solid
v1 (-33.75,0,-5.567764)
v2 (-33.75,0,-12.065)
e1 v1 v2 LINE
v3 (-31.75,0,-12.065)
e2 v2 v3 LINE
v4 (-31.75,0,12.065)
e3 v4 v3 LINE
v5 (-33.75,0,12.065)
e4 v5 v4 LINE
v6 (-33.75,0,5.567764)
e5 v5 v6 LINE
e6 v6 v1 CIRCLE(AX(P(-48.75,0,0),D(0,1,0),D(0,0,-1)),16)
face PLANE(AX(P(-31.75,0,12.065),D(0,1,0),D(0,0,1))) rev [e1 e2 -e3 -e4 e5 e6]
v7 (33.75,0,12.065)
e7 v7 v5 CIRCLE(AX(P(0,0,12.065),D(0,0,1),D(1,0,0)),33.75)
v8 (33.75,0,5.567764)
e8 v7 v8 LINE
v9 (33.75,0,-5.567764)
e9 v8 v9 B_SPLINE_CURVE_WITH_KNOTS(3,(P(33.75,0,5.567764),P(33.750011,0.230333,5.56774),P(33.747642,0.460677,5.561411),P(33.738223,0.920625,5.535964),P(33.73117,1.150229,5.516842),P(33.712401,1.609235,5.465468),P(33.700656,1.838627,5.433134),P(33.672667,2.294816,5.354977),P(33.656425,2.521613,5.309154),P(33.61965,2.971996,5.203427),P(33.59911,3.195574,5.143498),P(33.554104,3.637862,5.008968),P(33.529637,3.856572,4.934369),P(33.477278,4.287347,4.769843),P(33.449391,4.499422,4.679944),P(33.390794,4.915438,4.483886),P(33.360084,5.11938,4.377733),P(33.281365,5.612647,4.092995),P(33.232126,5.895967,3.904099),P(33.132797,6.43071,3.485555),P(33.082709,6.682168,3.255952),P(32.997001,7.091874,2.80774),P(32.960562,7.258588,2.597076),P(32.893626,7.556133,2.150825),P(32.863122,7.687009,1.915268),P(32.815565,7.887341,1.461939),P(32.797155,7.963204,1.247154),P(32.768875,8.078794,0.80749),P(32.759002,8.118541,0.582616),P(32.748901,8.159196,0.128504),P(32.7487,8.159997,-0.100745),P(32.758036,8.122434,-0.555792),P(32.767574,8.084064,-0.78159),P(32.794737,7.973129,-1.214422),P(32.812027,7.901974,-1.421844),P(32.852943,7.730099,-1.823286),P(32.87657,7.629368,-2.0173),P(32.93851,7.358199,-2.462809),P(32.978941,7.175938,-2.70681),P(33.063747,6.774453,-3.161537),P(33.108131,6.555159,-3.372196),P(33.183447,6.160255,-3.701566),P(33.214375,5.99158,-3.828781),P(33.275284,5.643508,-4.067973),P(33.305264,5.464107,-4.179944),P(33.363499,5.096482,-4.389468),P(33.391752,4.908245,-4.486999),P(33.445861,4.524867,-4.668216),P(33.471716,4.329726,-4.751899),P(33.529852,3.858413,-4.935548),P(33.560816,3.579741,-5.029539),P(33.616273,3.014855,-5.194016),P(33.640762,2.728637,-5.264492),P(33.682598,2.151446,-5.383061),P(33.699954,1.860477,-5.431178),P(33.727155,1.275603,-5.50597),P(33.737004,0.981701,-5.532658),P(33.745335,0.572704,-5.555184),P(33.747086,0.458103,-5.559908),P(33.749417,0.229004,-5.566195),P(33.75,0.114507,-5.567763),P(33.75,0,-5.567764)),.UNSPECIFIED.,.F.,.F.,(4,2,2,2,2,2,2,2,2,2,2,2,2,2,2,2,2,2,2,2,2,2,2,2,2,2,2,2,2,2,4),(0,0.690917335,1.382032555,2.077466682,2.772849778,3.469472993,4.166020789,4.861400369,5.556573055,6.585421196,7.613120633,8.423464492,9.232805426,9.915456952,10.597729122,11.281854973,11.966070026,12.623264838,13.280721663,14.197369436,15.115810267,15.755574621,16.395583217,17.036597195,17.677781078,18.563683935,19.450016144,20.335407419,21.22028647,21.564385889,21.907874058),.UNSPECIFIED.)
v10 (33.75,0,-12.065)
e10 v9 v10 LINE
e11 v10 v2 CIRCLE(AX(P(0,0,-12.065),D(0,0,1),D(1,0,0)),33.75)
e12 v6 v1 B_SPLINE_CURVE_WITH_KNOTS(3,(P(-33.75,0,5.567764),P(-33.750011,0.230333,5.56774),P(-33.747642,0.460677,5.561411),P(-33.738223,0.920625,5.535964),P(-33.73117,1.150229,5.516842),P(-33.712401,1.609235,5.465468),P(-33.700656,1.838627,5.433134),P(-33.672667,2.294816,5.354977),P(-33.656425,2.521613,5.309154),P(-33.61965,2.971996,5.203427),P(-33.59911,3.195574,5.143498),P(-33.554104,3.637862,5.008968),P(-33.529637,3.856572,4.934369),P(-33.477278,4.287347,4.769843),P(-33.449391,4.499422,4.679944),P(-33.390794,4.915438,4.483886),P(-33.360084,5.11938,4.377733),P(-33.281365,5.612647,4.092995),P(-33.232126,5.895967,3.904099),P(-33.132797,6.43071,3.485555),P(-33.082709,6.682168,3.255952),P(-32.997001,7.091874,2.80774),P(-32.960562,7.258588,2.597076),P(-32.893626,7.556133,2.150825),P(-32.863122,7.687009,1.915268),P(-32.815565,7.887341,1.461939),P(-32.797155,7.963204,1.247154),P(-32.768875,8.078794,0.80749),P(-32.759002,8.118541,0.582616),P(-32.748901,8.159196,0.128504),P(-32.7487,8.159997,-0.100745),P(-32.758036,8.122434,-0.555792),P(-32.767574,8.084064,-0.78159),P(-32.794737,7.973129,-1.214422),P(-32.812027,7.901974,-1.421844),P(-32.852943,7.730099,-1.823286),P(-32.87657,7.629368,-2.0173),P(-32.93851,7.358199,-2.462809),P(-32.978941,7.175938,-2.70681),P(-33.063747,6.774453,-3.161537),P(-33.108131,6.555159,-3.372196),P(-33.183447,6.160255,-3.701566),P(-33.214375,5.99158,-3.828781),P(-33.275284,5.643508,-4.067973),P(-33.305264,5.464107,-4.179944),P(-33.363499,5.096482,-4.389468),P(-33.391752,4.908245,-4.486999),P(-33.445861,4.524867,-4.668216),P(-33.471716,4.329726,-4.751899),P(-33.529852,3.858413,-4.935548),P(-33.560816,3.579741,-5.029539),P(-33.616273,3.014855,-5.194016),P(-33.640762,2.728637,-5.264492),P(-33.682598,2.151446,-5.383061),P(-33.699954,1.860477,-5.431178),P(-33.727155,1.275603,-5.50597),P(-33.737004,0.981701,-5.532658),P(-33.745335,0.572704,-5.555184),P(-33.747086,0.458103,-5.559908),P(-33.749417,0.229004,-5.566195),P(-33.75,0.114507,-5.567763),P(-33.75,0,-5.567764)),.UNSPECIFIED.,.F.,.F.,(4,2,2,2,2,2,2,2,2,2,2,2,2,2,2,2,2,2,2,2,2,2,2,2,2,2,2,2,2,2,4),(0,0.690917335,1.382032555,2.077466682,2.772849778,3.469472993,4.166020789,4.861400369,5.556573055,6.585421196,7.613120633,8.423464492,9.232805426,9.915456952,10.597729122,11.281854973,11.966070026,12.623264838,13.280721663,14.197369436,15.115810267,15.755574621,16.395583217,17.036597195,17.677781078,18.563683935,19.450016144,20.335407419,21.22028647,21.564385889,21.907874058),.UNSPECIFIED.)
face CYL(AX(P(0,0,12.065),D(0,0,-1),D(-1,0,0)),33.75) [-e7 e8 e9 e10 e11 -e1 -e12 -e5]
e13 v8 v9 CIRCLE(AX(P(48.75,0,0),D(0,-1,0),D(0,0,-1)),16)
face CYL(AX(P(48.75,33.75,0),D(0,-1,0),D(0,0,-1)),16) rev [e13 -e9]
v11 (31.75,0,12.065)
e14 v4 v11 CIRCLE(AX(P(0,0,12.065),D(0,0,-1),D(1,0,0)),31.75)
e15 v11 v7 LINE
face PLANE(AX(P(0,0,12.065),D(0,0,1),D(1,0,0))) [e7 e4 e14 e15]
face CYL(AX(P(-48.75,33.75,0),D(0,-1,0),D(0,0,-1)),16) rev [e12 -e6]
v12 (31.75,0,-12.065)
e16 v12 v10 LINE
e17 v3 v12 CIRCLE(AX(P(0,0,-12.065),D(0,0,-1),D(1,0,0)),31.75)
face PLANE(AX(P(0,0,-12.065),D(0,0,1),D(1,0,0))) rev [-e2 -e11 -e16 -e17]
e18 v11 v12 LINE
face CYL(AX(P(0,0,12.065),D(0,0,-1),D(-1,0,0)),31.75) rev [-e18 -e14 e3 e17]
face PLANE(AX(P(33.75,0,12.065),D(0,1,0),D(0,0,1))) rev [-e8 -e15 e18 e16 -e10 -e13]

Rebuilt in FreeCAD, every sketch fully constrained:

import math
import FreeCAD as App
import Part
import Sketcher
Q = App.Units.Quantity

doc = App.newDocument("Part")
params = doc.addObject("Spreadsheet::Sheet", "Params")
for row, (alias, value) in enumerate([
    ("sketch1_width", "2 mm"),
    ("sketch1_radius", "33.75 mm"),
    ("pad1_length", "24.13 mm"),
    ("sketch2_radius", "16 mm"),
], start=1):
    params.set(f"A{row}", alias)
    params.set(f"B{row}", "=" + value)
    params.setAlias(f"B{row}", alias)

body = doc.addObject("PartDesign::Body", "Body")

sketch1 = body.newObject("Sketcher::SketchObject", "Sketch")
sketch1.AttachmentSupport = (doc.getObject("XY_Plane"), [""])
sketch1.MapMode = "FlatFace"
sketch1.addGeometry([
    Part.LineSegment(App.Vector(31.75, 0, 0), App.Vector(33.75, 0, 0)),
    Part.ArcOfCircle(Part.Circle(App.Vector(0, 0, 0), App.Vector(0, 0, 1), 33.75), math.radians(0), math.radians(180)),
    Part.LineSegment(App.Vector(-33.75, 0, 0), App.Vector(-31.75, 0, 0)),
    Part.ArcOfCircle(Part.Circle(App.Vector(0, 0, 0), App.Vector(0, 0, 1), 31.75), math.radians(0), math.radians(180)),
], False)
sketch1.addConstraint([
    Sketcher.Constraint("Coincident", 0, 2, 1, 1),
    Sketcher.Constraint("Coincident", 1, 2, 2, 1),
    Sketcher.Constraint("Coincident", 2, 2, 3, 2),
    Sketcher.Constraint("Coincident", 3, 1, 0, 1),
    Sketcher.Constraint("Horizontal", 0),
    Sketcher.Constraint("Horizontal", 2),
    Sketcher.Constraint("Coincident", 1, 3, -1, 1),
    Sketcher.Constraint("Coincident", 3, 3, -1, 1),
    Sketcher.Constraint("PointOnObject", 0, 2, -1),
    Sketcher.Constraint("PointOnObject", 1, 2, -1),
    Sketcher.Constraint("DistanceX", 0, 1, 0, 2, Q("2 mm")),
    Sketcher.Constraint("Radius", 1, Q("33.75 mm")),
])
sketch1.setExpression("Constraints[10]", "Params.sketch1_width")
sketch1.setExpression("Constraints[11]", "Params.sketch1_radius")
pad1 = body.newObject("PartDesign::Pad", "Pad")
pad1.Profile = sketch1
pad1.setExpression("Length", "Params.pad1_length")
pad1.Midplane = True

sketch2 = body.newObject("Sketcher::SketchObject", "Sketch001")
sketch2.AttachmentSupport = (doc.getObject("XZ_Plane"), [""])
sketch2.MapMode = "FlatFace"
sketch2.addGeometry([
    Part.LineSegment(App.Vector(33.75, -5.567764, 0), App.Vector(33.75, 5.567764, 0)),
    Part.ArcOfCircle(Part.Circle(App.Vector(48.75, 0, 0), App.Vector(0, 0, 1), 16), math.radians(159.635865), math.radians(200.364135)),
], False)
sketch2.addConstraint([
    Sketcher.Constraint("Coincident", 0, 1, 1, 2),
    Sketcher.Constraint("Coincident", 1, 1, 0, 2),
    Sketcher.Constraint("Vertical", 0),
    Sketcher.Constraint("PointOnObject", 1, 3, -1),
    Sketcher.Constraint("Radius", 1, Q("16 mm")),
    Sketcher.Constraint("DistanceX", 0, 1, 1, 3, Q("15 mm")),
    Sketcher.Constraint("DistanceX", -1, 1, 1, 3, Q("48.75 mm")),
])
sketch2.setExpression("Constraints[4]", "Params.sketch2_radius")
pocket1 = body.newObject("PartDesign::Pocket", "Pocket")
pocket1.Profile = sketch2
pocket1.Type = "ThroughAll"
doc.recompute()

mirrored = body.newObject("PartDesign::Mirrored", "Mirrored")
mirrored.Originals = [pocket1]
mirrored.MirrorPlane = (doc.getObject("YZ_Plane"), [""])
body.Tip = mirrored

doc.recompute()
